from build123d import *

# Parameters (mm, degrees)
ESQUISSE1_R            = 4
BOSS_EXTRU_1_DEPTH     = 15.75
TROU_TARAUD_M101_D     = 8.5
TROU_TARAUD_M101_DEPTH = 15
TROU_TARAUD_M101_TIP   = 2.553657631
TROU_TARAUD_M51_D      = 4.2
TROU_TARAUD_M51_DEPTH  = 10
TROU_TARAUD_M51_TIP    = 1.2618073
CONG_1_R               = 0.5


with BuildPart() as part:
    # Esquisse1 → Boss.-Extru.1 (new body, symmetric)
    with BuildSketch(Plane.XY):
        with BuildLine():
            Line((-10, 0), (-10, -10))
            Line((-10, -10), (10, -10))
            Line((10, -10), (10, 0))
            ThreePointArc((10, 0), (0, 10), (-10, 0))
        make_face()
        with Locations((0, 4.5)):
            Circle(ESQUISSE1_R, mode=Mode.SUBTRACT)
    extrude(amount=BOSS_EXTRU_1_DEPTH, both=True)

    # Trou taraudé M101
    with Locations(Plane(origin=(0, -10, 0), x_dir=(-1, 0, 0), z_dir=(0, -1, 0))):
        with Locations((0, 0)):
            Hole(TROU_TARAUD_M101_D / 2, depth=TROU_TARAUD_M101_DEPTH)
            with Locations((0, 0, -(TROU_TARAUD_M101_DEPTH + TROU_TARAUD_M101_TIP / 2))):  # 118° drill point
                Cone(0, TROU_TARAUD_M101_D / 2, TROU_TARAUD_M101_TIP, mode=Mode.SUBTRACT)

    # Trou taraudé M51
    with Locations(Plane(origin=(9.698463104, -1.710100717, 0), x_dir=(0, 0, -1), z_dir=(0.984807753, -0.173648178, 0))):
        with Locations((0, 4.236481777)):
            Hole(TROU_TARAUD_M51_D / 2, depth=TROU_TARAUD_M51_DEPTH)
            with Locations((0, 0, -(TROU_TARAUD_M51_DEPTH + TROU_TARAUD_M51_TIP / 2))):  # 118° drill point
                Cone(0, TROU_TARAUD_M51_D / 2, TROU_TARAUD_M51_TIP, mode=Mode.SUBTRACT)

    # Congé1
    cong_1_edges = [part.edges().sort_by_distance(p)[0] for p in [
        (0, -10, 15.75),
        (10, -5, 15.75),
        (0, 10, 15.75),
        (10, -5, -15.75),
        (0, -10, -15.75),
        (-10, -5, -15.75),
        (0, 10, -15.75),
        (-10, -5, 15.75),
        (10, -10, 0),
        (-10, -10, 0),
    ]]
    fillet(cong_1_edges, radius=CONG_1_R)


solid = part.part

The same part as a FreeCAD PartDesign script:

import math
import FreeCAD as App
import Part
import Sketcher

V = App.Vector


def edges_at(feature, points):
    """Names of the edges that pass closest to the given points."""
    edges = feature.Shape.Edges
    near = lambda p: min(range(len(edges)), key=lambda i: edges[i].distToShape(Part.Vertex(*p))[0])
    return sorted({f"Edge{near(p) + 1}" for p in points})

doc = App.newDocument("Part")
body = doc.addObject("PartDesign::Body", "Body")

# Sketch on XY plane
sketch1 = body.newObject("Sketcher::SketchObject", "Sketch")
sketch1.AttachmentSupport = (doc.getObject("XY_Plane"), [""])
sketch1.MapMode = "FlatFace"
sketch1.addGeometry([
    Part.LineSegment(V(-10, 0, 0), V(-10, -10, 0)),  # 0
    Part.LineSegment(V(-10, -10, 0), V(10, -10, 0)),  # 1
    Part.LineSegment(V(10, -10, 0), V(10, 0, 0)),  # 2
    Part.ArcOfCircle(Part.Circle(V(0, 0, 0), V(0, 0, 1), 10), math.radians(0), math.radians(180)),  # 3
    Part.Circle(V(0, 4.5, 0), V(0, 0, 1), 4),  # 4
], False)
sketch1.addConstraint([
    Sketcher.Constraint("Coincident", 0, 2, 1, 1),
    Sketcher.Constraint("Coincident", 1, 2, 2, 1),
    Sketcher.Constraint("Tangent", 2, 2, 3, 1),
    Sketcher.Constraint("Tangent", 3, 2, 0, 1),
    Sketcher.Constraint("Vertical", 0),
    Sketcher.Constraint("Horizontal", 1),
    Sketcher.Constraint("Vertical", 2),
    Sketcher.Constraint("Coincident", 3, 3, -1, 1),
    Sketcher.Constraint("PointOnObject", 4, 3, -2),
    Sketcher.Constraint("Diameter", 4, 8.0),
    Sketcher.Constraint("Radius", 3, 10.0),
    Sketcher.Constraint("DistanceY", 0, 2, 0, 1, 10.0),
    Sketcher.Constraint("DistanceY", -1, 1, 4, 3, 4.5),
])
pad1 = body.newObject("PartDesign::Pad", "Pad")
pad1.Profile = sketch1
pad1.Length = 31.5
pad1.Midplane = True

# Sketch on XZ plane
sketch2 = body.newObject("Sketcher::SketchObject", "Sketch001")
sketch2.AttachmentSupport = (doc.getObject("XZ_Plane"), [""])
sketch2.MapMode = "FlatFace"
sketch2.AttachmentOffset = App.Placement(V(0, 0, 10), App.Rotation())
sketch2.addGeometry(Part.Circle(V(0, 0, 0), V(0, 0, 1), 4.2), False)
sketch2.addConstraint([
    Sketcher.Constraint("Coincident", 0, 3, -1, 1),
    Sketcher.Constraint("Diameter", 0, 8.5),
])
doc.recompute()
hole = body.newObject("PartDesign::Hole", "Hole")
hole.Profile = sketch2
hole.ThreadType = "None"
hole.Diameter = 8.5
hole.DepthType = "Dimension"
hole.Depth = 15
hole.DrillPoint = "Angled"
hole.DrillPointAngle = 118

# Sketch on an angled plane
sketch3 = body.newObject("Sketcher::SketchObject", "Sketch002")
sketch3.Placement = App.Placement(V(9.698463, -1.710101, 0), App.Rotation(V(0, 0, -1), V(0.173648178, 0.984807753, 0), V(0.984807753, -0.173648178, 0), "ZXY"))
sketch3.addGeometry(Part.Circle(V(0, 4.2, 0), V(0, 0, 1), 2.1), False)
sketch3.addConstraint([
    Sketcher.Constraint("PointOnObject", 0, 3, -2),
    Sketcher.Constraint("Diameter", 0, 4.2),
    Sketcher.Constraint("DistanceY", -1, 1, 0, 3, 4.236482),
])
doc.recompute()
hole2 = body.newObject("PartDesign::Hole", "Hole001")
hole2.Profile = sketch3
hole2.ThreadType = "None"
hole2.Diameter = 4.2
hole2.DepthType = "Dimension"
hole2.Depth = 10
hole2.DrillPoint = "Angled"
hole2.DrillPointAngle = 118
doc.recompute()

fillet = body.newObject("PartDesign::Fillet", "Fillet")
fillet.Base = (hole2, edges_at(hole2, [
    (0, -10, 15.75),
    (10, -5, 15.75),
    (0, 10, 15.75),
    (10, -5, -15.75),
    (0, -10, -15.75),
    (-10, -5, -15.75),
    (0, 10, -15.75),
    (-10, -5, 15.75),
    (10, -10, 0),
    (-10, -10, 0),
]))
fillet.Radius = 0.5

doc.recompute()
